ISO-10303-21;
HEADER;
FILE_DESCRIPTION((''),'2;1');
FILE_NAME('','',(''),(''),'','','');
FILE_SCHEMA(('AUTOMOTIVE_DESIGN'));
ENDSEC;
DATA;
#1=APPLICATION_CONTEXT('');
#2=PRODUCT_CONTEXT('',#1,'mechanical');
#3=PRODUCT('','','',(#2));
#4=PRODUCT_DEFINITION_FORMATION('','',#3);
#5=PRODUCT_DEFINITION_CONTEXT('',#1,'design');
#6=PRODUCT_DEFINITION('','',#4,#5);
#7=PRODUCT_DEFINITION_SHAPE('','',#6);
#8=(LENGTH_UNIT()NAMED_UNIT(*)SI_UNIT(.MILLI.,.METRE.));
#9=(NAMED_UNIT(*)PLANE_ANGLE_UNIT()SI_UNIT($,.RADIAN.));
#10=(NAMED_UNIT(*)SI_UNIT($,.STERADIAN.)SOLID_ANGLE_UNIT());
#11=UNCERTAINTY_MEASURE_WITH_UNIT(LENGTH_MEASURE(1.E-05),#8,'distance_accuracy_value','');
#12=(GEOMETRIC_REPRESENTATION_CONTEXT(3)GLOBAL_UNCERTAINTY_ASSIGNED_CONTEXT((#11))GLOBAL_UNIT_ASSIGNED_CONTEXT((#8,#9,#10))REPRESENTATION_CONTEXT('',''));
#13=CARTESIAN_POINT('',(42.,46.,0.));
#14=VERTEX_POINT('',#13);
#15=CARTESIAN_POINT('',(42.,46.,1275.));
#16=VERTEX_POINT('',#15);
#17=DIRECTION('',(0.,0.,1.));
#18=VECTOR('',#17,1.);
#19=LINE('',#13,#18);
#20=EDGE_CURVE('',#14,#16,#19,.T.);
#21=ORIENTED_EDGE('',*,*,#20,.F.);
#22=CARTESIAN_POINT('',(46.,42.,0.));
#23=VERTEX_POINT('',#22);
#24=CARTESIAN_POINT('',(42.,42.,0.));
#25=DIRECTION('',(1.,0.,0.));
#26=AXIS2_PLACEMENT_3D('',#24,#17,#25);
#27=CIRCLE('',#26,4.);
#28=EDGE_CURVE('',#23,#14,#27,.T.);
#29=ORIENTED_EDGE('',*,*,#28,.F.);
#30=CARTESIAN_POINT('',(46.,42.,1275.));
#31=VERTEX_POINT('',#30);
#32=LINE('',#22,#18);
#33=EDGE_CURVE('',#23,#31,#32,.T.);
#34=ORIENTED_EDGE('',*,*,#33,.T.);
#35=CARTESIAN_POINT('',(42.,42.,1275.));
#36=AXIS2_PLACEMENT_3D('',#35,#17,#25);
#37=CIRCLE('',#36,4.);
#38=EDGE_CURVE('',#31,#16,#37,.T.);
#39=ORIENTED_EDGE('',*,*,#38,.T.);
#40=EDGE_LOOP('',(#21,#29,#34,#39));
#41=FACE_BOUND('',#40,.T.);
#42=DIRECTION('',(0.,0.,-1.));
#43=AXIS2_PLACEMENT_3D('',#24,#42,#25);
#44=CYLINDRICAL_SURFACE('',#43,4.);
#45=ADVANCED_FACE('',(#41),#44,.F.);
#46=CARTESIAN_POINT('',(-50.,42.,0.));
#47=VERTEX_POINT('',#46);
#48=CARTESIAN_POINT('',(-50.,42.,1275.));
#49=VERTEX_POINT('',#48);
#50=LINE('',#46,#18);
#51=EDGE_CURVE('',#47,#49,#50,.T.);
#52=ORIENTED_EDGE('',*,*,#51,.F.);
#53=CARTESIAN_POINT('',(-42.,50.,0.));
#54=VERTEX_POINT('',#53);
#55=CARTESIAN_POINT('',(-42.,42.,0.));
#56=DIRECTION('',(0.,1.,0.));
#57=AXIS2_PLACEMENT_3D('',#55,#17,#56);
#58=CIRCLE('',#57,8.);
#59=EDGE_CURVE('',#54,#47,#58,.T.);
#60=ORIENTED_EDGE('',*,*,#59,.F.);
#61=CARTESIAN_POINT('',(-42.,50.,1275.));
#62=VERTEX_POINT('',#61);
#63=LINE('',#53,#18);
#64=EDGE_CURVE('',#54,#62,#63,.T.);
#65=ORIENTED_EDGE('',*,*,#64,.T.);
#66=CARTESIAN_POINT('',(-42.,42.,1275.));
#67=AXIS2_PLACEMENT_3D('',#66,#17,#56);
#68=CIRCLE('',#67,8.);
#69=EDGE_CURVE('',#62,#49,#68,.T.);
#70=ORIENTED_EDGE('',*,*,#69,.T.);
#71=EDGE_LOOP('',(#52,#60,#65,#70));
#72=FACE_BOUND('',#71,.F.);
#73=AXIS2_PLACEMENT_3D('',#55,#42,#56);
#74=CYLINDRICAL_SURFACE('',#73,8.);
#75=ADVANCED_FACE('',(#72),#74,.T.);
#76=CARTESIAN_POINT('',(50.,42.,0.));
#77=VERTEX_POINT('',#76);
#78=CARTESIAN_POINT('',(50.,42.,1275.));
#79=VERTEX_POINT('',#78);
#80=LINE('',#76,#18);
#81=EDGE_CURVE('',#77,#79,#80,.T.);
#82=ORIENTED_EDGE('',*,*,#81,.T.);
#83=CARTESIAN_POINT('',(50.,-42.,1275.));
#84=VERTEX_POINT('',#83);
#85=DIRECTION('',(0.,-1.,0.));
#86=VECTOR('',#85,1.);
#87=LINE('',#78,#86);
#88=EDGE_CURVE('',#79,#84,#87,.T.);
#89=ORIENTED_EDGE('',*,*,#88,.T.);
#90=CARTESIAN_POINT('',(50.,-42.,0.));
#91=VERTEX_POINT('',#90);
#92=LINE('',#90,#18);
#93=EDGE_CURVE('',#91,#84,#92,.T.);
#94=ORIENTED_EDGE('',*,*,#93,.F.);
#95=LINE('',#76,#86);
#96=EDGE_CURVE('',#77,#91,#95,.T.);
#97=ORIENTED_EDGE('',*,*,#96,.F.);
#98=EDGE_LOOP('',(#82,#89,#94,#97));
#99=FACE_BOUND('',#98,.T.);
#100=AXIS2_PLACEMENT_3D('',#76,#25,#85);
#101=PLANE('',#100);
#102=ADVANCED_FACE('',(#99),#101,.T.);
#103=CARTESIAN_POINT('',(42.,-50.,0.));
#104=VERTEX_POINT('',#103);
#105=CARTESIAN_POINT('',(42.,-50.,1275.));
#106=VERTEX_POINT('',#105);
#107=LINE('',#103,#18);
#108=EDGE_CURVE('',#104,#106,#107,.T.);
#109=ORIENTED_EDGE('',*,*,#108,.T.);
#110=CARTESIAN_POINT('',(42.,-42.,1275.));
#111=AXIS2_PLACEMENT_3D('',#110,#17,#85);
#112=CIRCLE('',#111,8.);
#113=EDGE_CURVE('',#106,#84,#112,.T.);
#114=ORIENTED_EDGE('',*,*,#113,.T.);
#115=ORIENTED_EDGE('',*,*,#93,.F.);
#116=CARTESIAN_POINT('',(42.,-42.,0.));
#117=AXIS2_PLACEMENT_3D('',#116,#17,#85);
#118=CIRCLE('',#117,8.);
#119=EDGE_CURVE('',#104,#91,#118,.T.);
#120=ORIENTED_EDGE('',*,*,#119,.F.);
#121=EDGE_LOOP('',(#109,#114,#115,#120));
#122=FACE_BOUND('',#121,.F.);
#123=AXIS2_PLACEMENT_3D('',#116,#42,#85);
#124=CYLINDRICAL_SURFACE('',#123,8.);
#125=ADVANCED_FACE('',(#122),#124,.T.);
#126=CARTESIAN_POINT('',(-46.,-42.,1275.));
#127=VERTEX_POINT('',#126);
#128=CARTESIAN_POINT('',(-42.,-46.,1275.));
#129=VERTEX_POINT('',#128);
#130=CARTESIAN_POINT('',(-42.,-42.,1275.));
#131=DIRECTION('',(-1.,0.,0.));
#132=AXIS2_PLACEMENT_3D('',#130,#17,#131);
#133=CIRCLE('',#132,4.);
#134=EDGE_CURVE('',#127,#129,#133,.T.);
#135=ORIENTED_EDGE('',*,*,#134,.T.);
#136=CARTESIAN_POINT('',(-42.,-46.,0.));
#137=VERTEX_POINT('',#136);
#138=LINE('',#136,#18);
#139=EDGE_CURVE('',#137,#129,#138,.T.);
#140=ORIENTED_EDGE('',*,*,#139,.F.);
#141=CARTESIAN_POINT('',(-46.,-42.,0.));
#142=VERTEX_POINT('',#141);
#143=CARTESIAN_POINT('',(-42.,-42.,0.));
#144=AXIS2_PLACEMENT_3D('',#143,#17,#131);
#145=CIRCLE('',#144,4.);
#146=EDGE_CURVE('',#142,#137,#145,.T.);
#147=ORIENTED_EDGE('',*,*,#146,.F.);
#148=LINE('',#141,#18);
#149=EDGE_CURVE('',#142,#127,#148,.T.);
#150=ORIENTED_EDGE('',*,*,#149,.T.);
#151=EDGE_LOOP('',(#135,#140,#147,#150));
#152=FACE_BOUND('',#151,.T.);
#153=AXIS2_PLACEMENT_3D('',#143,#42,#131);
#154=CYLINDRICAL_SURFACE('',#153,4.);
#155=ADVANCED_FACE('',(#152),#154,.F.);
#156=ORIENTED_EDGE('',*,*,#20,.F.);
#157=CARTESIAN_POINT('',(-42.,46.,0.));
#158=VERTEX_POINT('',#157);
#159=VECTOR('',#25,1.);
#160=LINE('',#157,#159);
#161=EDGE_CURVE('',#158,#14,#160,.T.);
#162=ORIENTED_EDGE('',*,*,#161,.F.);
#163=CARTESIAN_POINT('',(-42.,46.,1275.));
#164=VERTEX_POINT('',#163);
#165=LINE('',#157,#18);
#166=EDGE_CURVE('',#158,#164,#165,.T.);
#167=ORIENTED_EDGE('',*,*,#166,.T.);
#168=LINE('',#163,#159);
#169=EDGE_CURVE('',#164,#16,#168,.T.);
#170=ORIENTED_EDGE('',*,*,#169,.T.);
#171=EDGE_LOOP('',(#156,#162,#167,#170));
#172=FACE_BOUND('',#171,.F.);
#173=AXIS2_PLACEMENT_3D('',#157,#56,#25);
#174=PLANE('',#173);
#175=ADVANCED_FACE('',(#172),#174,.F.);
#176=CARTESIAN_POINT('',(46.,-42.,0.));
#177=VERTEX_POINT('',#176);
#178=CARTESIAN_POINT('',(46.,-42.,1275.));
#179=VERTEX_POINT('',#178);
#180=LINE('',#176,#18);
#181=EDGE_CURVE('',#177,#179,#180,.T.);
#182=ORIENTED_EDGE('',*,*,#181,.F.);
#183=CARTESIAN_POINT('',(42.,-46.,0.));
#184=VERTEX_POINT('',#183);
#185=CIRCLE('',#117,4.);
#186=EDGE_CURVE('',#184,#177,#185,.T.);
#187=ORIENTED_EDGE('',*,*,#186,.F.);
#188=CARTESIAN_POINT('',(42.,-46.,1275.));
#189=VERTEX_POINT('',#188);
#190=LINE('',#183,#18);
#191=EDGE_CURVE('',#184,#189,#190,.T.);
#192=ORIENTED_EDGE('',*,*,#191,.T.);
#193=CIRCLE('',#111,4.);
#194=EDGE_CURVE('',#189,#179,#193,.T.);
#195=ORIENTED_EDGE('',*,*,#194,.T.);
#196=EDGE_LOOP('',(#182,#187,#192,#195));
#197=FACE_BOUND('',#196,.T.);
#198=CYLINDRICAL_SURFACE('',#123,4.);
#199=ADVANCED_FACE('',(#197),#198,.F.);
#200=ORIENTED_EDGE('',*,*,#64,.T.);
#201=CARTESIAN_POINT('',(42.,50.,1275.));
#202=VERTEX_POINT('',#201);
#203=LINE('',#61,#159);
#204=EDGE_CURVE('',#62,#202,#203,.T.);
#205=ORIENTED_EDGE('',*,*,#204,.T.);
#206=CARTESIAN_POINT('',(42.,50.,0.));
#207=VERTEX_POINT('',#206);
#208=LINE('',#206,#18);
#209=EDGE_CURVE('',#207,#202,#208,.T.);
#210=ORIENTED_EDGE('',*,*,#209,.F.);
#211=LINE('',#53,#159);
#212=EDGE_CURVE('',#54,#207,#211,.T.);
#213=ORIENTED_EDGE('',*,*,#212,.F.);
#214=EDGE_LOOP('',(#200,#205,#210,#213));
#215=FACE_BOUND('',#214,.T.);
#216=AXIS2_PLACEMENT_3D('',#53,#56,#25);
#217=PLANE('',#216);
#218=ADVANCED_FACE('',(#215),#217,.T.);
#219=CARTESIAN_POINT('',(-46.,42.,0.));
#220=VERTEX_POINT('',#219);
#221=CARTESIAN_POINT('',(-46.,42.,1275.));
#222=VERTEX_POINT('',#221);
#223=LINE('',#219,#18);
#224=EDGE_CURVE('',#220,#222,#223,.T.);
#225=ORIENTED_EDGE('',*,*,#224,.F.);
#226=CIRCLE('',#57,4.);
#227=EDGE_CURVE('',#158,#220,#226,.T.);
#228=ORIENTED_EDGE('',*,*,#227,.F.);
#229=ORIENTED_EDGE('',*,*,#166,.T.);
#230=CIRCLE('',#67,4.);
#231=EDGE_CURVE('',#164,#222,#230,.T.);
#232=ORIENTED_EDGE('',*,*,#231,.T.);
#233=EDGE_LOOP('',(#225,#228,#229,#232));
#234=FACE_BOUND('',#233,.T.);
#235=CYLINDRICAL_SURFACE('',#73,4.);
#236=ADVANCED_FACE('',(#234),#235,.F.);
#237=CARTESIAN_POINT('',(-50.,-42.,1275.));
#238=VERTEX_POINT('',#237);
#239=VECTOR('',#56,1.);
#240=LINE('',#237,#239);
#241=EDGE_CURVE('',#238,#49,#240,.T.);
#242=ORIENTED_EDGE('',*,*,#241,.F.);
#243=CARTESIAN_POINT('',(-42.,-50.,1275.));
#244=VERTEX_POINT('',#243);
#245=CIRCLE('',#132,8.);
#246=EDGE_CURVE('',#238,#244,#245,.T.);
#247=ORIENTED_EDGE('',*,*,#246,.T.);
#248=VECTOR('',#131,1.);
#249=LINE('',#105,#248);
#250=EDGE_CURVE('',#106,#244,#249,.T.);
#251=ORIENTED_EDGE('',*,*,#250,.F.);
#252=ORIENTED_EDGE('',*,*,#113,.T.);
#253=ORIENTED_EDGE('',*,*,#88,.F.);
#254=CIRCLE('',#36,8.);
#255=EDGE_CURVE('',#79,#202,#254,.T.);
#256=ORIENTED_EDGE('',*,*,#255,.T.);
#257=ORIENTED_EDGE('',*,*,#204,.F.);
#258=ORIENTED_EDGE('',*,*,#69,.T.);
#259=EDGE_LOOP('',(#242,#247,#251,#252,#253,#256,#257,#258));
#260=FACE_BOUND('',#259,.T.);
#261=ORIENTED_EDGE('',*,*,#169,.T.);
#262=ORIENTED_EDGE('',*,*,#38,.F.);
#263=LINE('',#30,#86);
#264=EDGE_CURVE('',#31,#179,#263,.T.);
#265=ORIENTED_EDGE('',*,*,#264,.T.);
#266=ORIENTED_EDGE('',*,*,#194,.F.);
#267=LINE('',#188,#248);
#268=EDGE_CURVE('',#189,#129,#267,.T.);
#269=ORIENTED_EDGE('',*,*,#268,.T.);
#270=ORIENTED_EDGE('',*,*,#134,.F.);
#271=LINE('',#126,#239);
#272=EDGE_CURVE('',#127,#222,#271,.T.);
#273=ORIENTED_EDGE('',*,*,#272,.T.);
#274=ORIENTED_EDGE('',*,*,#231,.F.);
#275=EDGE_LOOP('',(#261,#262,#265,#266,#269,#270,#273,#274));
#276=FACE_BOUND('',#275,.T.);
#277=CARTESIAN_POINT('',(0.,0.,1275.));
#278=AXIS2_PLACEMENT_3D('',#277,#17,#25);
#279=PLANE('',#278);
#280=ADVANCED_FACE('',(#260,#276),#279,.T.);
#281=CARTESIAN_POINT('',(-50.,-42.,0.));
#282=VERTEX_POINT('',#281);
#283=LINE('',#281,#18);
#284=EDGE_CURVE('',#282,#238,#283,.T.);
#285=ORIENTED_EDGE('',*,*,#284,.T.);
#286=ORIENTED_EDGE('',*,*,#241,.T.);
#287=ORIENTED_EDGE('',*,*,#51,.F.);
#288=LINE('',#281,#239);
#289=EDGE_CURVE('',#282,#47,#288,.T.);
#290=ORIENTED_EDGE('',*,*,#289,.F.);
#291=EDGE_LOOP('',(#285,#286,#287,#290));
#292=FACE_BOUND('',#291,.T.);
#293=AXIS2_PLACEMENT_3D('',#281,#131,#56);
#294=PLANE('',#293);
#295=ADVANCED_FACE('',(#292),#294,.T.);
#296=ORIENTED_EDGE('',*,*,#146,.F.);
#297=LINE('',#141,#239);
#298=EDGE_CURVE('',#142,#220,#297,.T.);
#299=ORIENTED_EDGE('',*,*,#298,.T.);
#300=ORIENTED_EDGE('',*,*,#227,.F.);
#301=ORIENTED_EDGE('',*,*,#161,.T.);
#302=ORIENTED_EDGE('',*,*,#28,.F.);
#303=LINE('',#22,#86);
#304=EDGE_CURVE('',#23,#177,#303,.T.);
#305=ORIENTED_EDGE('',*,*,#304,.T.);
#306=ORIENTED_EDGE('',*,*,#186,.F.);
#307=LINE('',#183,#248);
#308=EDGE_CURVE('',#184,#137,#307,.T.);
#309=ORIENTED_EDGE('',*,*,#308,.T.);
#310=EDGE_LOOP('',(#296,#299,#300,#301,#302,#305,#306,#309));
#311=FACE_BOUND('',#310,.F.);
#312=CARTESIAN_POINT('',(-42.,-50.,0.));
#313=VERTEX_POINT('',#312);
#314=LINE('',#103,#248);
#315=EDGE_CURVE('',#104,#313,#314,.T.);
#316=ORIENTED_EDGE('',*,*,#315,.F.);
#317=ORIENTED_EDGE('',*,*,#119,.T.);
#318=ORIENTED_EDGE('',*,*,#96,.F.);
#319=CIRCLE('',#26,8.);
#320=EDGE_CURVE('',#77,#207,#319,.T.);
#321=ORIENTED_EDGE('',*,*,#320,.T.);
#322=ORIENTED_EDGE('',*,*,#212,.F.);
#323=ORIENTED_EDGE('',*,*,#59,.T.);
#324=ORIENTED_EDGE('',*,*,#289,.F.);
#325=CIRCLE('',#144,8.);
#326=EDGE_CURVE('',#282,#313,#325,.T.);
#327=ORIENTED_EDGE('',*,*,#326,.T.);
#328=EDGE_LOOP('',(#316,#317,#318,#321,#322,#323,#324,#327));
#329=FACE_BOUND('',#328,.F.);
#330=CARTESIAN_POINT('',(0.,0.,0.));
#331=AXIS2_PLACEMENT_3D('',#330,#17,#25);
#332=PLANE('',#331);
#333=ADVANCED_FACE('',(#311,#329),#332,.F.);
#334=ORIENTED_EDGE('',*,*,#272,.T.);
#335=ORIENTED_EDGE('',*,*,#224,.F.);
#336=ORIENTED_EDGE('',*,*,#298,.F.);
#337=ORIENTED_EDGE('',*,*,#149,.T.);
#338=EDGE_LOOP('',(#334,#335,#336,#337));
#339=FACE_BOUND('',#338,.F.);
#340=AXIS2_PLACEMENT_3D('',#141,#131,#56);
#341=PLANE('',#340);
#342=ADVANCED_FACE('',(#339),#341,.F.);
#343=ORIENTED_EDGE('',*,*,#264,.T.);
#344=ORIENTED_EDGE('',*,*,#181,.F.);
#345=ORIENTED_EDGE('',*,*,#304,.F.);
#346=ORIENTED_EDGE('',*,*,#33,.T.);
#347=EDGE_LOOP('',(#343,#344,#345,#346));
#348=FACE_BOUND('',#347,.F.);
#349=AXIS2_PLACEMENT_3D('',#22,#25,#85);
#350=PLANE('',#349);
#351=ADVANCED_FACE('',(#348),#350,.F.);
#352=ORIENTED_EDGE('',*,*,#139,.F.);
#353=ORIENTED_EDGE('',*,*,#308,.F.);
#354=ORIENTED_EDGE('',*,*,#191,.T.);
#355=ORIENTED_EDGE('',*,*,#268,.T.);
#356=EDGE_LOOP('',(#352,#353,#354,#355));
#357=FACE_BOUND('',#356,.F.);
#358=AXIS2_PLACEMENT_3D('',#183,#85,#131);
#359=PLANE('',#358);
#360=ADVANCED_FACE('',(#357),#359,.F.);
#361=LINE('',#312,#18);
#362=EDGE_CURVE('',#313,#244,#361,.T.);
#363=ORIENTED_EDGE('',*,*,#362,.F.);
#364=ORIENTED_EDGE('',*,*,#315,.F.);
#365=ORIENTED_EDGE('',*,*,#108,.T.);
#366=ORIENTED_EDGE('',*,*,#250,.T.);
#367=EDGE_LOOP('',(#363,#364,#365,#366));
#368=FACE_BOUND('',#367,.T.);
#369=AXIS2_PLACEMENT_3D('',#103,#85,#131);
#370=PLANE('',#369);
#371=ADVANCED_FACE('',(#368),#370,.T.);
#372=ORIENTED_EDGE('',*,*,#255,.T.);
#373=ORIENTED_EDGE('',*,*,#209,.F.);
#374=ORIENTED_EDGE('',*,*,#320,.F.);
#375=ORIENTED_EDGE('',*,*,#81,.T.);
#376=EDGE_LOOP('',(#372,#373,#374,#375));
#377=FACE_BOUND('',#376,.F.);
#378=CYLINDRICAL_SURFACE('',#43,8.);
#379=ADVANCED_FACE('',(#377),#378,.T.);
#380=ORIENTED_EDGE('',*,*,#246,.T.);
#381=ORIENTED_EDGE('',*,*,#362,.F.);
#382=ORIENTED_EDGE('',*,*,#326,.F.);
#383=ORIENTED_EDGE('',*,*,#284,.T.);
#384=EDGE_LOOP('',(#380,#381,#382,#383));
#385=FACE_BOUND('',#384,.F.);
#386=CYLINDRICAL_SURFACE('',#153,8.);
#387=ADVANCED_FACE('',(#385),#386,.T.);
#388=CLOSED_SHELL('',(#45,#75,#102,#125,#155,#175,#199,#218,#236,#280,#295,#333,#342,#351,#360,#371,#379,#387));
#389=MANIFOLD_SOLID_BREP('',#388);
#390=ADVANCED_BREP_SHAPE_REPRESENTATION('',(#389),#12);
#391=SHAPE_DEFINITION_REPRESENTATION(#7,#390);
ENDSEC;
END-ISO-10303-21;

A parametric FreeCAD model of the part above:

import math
import FreeCAD as App
import Part
import Sketcher

V = App.Vector
Q = App.Units.Quantity

doc = App.newDocument("Part")
body = doc.addObject("PartDesign::Body", "Body")

# Sketch on XY plane
sketch1 = doc.addObject("Sketcher::SketchObject", "Sketch")
body.addObject(sketch1)
sketch1.AttachmentSupport = (doc.XY_Plane, [""])
sketch1.MapMode = "FlatFace"
sketch1.addGeometry([
    Part.LineSegment(V(-50, 42, 0), V(-50, -42, 0)),  # 0
    Part.ArcOfCircle(Part.Circle(V(-42, -42, 0), V(0, 0, 1), 8), math.radians(180), math.radians(270)),  # 1
    Part.LineSegment(V(-42, -50, 0), V(42, -50, 0)),  # 2
    Part.ArcOfCircle(Part.Circle(V(42, -42, 0), V(0, 0, 1), 8), math.radians(-90), math.radians(0)),  # 3
    Part.LineSegment(V(50, -42, 0), V(50, 42, 0)),  # 4
    Part.ArcOfCircle(Part.Circle(V(42, 42, 0), V(0, 0, 1), 8), math.radians(0), math.radians(90)),  # 5
    Part.LineSegment(V(42, 50, 0), V(-42, 50, 0)),  # 6
    Part.ArcOfCircle(Part.Circle(V(-42, 42, 0), V(0, 0, 1), 8), math.radians(90), math.radians(180)),  # 7
    Part.ArcOfCircle(Part.Circle(V(-42, 42, 0), V(0, 0, 1), 4), math.radians(90), math.radians(180)),  # 8
    Part.LineSegment(V(-42, 46, 0), V(42, 46, 0)),  # 9
    Part.ArcOfCircle(Part.Circle(V(42, 42, 0), V(0, 0, 1), 4), math.radians(0), math.radians(90)),  # 10
    Part.LineSegment(V(46, 42, 0), V(46, -42, 0)),  # 11
    Part.ArcOfCircle(Part.Circle(V(42, -42, 0), V(0, 0, 1), 4), math.radians(-90), math.radians(0)),  # 12
    Part.LineSegment(V(42, -46, 0), V(-42, -46, 0)),  # 13
    Part.ArcOfCircle(Part.Circle(V(-42, -42, 0), V(0, 0, 1), 4), math.radians(180), math.radians(270)),  # 14
    Part.LineSegment(V(-46, -42, 0), V(-46, 42, 0)),  # 15
], False)
sketch1.addConstraint([
    Sketcher.Constraint("Tangent", 0, 2, 1, 1),
    Sketcher.Constraint("Tangent", 1, 2, 2, 1),
    Sketcher.Constraint("Tangent", 2, 2, 3, 1),
    Sketcher.Constraint("Tangent", 3, 2, 4, 1),
    Sketcher.Constraint("Tangent", 4, 2, 5, 1),
    Sketcher.Constraint("Tangent", 5, 2, 6, 1),
    Sketcher.Constraint("Tangent", 6, 2, 7, 1),
    Sketcher.Constraint("Tangent", 7, 2, 0, 1),
    Sketcher.Constraint("Tangent", 8, 1, 9, 1),
    Sketcher.Constraint("Tangent", 9, 2, 10, 2),
    Sketcher.Constraint("Tangent", 10, 1, 11, 1),
    Sketcher.Constraint("Tangent", 11, 2, 12, 2),
    Sketcher.Constraint("Tangent", 12, 1, 13, 1),
    Sketcher.Constraint("Tangent", 13, 2, 14, 2),
    Sketcher.Constraint("Tangent", 14, 1, 15, 1),
    Sketcher.Constraint("Tangent", 15, 2, 8, 2),
    Sketcher.Constraint("Vertical", 0),
    Sketcher.Constraint("Horizontal", 2),
    Sketcher.Constraint("Vertical", 4),
    Sketcher.Constraint("Horizontal", 6),
    Sketcher.Constraint("Horizontal", 9),
    Sketcher.Constraint("Vertical", 11),
    Sketcher.Constraint("Horizontal", 13),
    Sketcher.Constraint("Vertical", 15),
    Sketcher.Constraint("Coincident", 8, 3, 7, 3),
    Sketcher.Constraint("Coincident", 10, 3, 5, 3),
    Sketcher.Constraint("Coincident", 12, 3, 3, 3),
    Sketcher.Constraint("Equal", 1, 3),
    Sketcher.Constraint("Equal", 3, 5),
    Sketcher.Constraint("Equal", 5, 7),
    Sketcher.Constraint("Equal", 12, 14),
    Sketcher.Constraint("Symmetric", 1, 3, 5, 3, -1, 1),
    Sketcher.Constraint("Equal", 13, 0),
    Sketcher.Constraint("Radius", 1, Q("8 mm")),
    Sketcher.Constraint("Radius", 8, Q("4 mm")),
    Sketcher.Constraint("DistanceX", 0, 2, -1, 1, Q("50 mm")),
])
pad1 = doc.addObject("PartDesign::Pad", "Pad")
body.addObject(pad1)
pad1.Profile = sketch1
pad1.Length = 1275

doc.recompute()
